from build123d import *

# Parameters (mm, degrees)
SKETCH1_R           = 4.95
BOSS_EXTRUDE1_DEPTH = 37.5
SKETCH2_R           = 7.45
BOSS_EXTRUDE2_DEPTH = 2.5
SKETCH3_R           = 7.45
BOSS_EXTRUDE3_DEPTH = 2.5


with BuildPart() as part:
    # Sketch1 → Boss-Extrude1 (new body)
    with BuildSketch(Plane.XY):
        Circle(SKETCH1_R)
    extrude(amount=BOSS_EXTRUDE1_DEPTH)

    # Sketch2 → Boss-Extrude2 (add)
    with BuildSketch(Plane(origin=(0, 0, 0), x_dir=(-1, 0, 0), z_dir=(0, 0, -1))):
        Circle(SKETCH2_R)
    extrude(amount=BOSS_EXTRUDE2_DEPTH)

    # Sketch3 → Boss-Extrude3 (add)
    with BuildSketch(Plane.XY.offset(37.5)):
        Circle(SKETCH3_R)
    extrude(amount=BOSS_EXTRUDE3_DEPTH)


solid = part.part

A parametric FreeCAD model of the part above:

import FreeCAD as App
import Part
import Sketcher

doc = App.newDocument("Part")
body = doc.addObject("PartDesign::Body", "Body")

# Sketch on XY plane
sketch1 = body.newObject("Sketcher::SketchObject", "Sketch")
sketch1.AttachmentSupport = (doc.getObject("XY_Plane"), [""])
sketch1.MapMode = "FlatFace"
sketch1.addGeometry(Part.Circle(App.Vector(0, 0, 0), App.Vector(0, 0, 1), 4.95), False)
sketch1.addConstraint([
    Sketcher.Constraint("Coincident", 0, 3, -1, 1),
    Sketcher.Constraint("Diameter", 0, 9.9),
])
pad1 = body.newObject("PartDesign::Pad", "Pad")
pad1.Profile = sketch1
pad1.Length = 37.5

# Sketch on XY plane
sketch2 = body.newObject("Sketcher::SketchObject", "Sketch001")
sketch2.AttachmentSupport = (doc.getObject("XY_Plane"), [""])
sketch2.MapMode = "FlatFace"
sketch2.addGeometry(Part.Circle(App.Vector(0, 0, 0), App.Vector(0, 0, 1), 7.45), False)
sketch2.addConstraint([
    Sketcher.Constraint("Coincident", 0, 3, -1, 1),
    Sketcher.Constraint("Diameter", 0, 14.9),
])
pad2 = body.newObject("PartDesign::Pad", "Pad001")
pad2.Profile = sketch2
pad2.Length = 2.5
pad2.Reversed = True

# Sketch on XY plane
sketch3 = body.newObject("Sketcher::SketchObject", "Sketch002")
sketch3.AttachmentSupport = (doc.getObject("XY_Plane"), [""])
sketch3.MapMode = "FlatFace"
sketch3.AttachmentOffset = App.Placement(App.Vector(0, 0, 37.5), App.Rotation())
sketch3.addGeometry(Part.Circle(App.Vector(0, 0, 0), App.Vector(0, 0, 1), 7.45), False)
sketch3.addConstraint([
    Sketcher.Constraint("Coincident", 0, 3, -1, 1),
    Sketcher.Constraint("Diameter", 0, 14.9),
])
pad3 = body.newObject("PartDesign::Pad", "Pad002")
pad3.Profile = sketch3
pad3.Length = 2.5

doc.recompute()
